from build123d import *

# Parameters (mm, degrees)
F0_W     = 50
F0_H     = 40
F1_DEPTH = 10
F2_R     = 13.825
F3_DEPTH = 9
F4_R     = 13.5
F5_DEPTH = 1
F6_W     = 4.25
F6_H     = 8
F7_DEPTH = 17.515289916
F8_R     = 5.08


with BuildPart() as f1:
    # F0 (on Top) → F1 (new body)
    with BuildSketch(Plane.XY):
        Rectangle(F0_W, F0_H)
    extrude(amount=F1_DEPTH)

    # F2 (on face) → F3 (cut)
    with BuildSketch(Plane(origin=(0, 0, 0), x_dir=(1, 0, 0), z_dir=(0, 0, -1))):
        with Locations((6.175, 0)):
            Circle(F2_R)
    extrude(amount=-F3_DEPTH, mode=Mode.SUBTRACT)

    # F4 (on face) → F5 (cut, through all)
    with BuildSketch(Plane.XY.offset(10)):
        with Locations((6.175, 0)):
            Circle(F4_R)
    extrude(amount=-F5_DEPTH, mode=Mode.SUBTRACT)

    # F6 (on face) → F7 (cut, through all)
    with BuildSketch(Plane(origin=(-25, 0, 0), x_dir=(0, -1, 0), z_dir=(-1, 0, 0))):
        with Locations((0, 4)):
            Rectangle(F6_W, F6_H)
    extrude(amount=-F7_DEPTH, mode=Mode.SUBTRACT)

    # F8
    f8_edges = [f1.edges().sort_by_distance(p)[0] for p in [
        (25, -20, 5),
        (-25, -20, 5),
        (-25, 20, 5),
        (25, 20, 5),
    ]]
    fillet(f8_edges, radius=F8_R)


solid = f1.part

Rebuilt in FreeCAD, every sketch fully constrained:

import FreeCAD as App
import Part
import Sketcher

V = App.Vector


def edges_at(feature, points):
    """Names of the edges that pass closest to the given points."""
    edges = feature.Shape.Edges
    near = lambda p: min(range(len(edges)), key=lambda i: edges[i].distToShape(Part.Vertex(*p))[0])
    return sorted({f"Edge{near(p) + 1}" for p in points})


def add_polygon(sketch, points):
    """Adds a closed chain of lines whose ends are joined by coincident constraints."""
    first, n = sketch.GeometryCount, len(points)
    for a, b in zip(points, points[1:] + points[:1]):
        sketch.addGeometry(Part.LineSegment(App.Vector(*a, 0), App.Vector(*b, 0)), False)
    for i in range(n):
        sketch.addConstraint(Sketcher.Constraint("Coincident", first + i, 2, first + (i + 1) % n, 1))

doc = App.newDocument("Part")
body = doc.addObject("PartDesign::Body", "Body")

# Sketch on XY plane
sketch1 = body.newObject("Sketcher::SketchObject", "Sketch")
sketch1.AttachmentSupport = (doc.getObject("XY_Plane"), [""])
sketch1.MapMode = "FlatFace"
add_polygon(sketch1, [(-25, 20), (-25, -20), (25, -20), (25, 20)])  # lines 0-3
sketch1.addConstraint([
    Sketcher.Constraint("Vertical", 0),
    Sketcher.Constraint("Horizontal", 1),
    Sketcher.Constraint("Vertical", 2),
    Sketcher.Constraint("Horizontal", 3),
    Sketcher.Constraint("Symmetric", 0, 2, 2, 2, -1, 1),
    Sketcher.Constraint("DistanceX", 1, 1, 1, 2, 50.0),
    Sketcher.Constraint("DistanceY", 0, 2, 0, 1, 40.0),
])
pad1 = body.newObject("PartDesign::Pad", "Pad")
pad1.Profile = sketch1
pad1.Length = 10

# Sketch on XY plane
sketch2 = body.newObject("Sketcher::SketchObject", "Sketch001")
sketch2.AttachmentSupport = (doc.getObject("XY_Plane"), [""])
sketch2.MapMode = "FlatFace"
sketch2.addGeometry(Part.Circle(V(6, 0, 0), V(0, 0, 1), 14), False)
sketch2.addConstraint([
    Sketcher.Constraint("PointOnObject", 0, 3, -1),
    Sketcher.Constraint("Diameter", 0, 27.65),
    Sketcher.Constraint("DistanceX", -1, 1, 0, 3, 6.175),
])
pocket1 = body.newObject("PartDesign::Pocket", "Pocket")
pocket1.Profile = sketch2
pocket1.Length = 9
pocket1.Reversed = True

# Sketch on XY plane
sketch3 = body.newObject("Sketcher::SketchObject", "Sketch002")
sketch3.AttachmentSupport = (doc.getObject("XY_Plane"), [""])
sketch3.MapMode = "FlatFace"
sketch3.AttachmentOffset = App.Placement(V(0, 0, 10), App.Rotation())
sketch3.addGeometry(Part.Circle(V(6, 0, 0), V(0, 0, 1), 14), False)
sketch3.addConstraint([
    Sketcher.Constraint("PointOnObject", 0, 3, -1),
    Sketcher.Constraint("Diameter", 0, 27.0),
    Sketcher.Constraint("DistanceX", -1, 1, 0, 3, 6.175),
])
pocket2 = body.newObject("PartDesign::Pocket", "Pocket001")
pocket2.Profile = sketch3
pocket2.Type = "ThroughAll"

# Sketch on YZ plane
sketch4 = body.newObject("Sketcher::SketchObject", "Sketch003")
sketch4.AttachmentSupport = (doc.getObject("YZ_Plane"), [""])
sketch4.MapMode = "FlatFace"
sketch4.AttachmentOffset = App.Placement(V(0, 0, -25), App.Rotation())
add_polygon(sketch4, [(2.1, 8), (2.1, 0), (-2.1, 0), (-2.1, 8)])  # lines 0-3
sketch4.addConstraint([
    Sketcher.Constraint("Vertical", 0),
    Sketcher.Constraint("Horizontal", 1),
    Sketcher.Constraint("Vertical", 2),
    Sketcher.Constraint("Horizontal", 3),
    Sketcher.Constraint("Symmetric", 0, 2, 1, 2, -1, 1),
    Sketcher.Constraint("DistanceY", 0, 2, 0, 1, 8.0),
    Sketcher.Constraint("DistanceX", 1, 2, 1, 1, 4.25),
])
pocket3 = body.newObject("PartDesign::Pocket", "Pocket002")
pocket3.Profile = sketch4
pocket3.Length = 17.51529
pocket3.Reversed = True
doc.recompute()

fillet = body.newObject("PartDesign::Fillet", "Fillet")
fillet.Base = (pocket3, edges_at(pocket3, [
    (25, -20, 5),
    (-25, -20, 5),
    (-25, 20, 5),
    (25, 20, 5),
]))
fillet.Radius = 5.08

doc.recompute()
